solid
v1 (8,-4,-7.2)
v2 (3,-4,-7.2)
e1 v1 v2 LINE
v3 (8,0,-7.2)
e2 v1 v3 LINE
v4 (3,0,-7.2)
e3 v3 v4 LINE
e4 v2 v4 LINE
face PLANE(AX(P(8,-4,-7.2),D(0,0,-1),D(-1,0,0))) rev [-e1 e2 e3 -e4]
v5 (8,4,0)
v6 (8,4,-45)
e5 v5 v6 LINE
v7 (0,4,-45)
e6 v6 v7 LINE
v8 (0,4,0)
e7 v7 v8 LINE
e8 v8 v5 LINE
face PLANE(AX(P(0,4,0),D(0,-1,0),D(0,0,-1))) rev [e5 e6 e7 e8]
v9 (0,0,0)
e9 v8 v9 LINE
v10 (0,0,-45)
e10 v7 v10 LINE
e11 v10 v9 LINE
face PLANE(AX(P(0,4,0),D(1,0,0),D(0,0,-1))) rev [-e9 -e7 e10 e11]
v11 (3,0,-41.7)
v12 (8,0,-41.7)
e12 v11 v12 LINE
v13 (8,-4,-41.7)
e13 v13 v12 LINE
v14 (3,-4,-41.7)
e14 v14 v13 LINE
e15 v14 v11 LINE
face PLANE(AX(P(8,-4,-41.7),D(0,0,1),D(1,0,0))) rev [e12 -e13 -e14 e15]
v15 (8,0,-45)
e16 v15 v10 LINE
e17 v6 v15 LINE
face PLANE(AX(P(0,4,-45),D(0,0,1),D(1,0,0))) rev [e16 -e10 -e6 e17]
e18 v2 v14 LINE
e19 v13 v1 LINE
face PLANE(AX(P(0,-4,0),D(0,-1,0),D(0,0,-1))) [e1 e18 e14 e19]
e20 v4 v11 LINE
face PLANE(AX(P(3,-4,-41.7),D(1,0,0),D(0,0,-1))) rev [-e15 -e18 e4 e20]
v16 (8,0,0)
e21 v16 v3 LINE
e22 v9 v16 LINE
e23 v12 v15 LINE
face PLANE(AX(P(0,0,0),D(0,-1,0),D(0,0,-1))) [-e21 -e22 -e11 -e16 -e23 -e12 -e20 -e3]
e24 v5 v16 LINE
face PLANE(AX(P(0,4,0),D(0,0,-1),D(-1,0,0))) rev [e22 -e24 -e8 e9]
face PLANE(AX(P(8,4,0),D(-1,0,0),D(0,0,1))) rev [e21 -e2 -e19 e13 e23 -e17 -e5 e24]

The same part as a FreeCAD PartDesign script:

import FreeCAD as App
import Part
import Sketcher
Q = App.Units.Quantity


def add_polygon(sketch, points):
    """Adds a closed chain of lines whose ends are joined by coincident constraints."""
    first, n = sketch.GeometryCount, len(points)
    for a, b in zip(points, points[1:] + points[:1]):
        sketch.addGeometry(Part.LineSegment(App.Vector(*a, 0), App.Vector(*b, 0)), False)
    for i in range(n):
        sketch.addConstraint(Sketcher.Constraint("Coincident", first + i, 2, first + (i + 1) % n, 1))

doc = App.newDocument("Part")
body = doc.addObject("PartDesign::Body", "Body")

# Sketch on XZ plane
sketch1 = doc.addObject("Sketcher::SketchObject", "Sketch")
body.addObject(sketch1)
sketch1.AttachmentSupport = (doc.XZ_Plane, [""])
sketch1.MapMode = "FlatFace"
add_polygon(sketch1, [(0, -45), (0, 0), (8, 0), (8, -45)])  # lines 0-3
sketch1.addConstraint([
    Sketcher.Constraint("Vertical", 0),
    Sketcher.Constraint("Horizontal", 1),
    Sketcher.Constraint("Vertical", 2),
    Sketcher.Constraint("Horizontal", 3),
    Sketcher.Constraint("Coincident", 0, 2, -1, 1),
    Sketcher.Constraint("DistanceX", 1, 1, 1, 2, Q("8 mm")),
    Sketcher.Constraint("DistanceY", 0, 1, 0, 2, Q("45 mm")),
])
pad1 = doc.addObject("PartDesign::Pad", "Pad")
body.addObject(pad1)
pad1.Profile = sketch1
pad1.Length = 4
pad1.Reversed = True

# Sketch on XZ plane
sketch2 = doc.addObject("Sketcher::SketchObject", "Sketch001")
body.addObject(sketch2)
sketch2.AttachmentSupport = (doc.XZ_Plane, [""])
sketch2.MapMode = "FlatFace"
add_polygon(sketch2, [(3, -7.2), (3, -41.7), (8, -41.7), (8, -7.2)])  # lines 0-3
sketch2.addConstraint([
    Sketcher.Constraint("Vertical", 0),
    Sketcher.Constraint("Horizontal", 1),
    Sketcher.Constraint("Vertical", 2),
    Sketcher.Constraint("Horizontal", 3),
    Sketcher.Constraint("DistanceX", 1, 1, 1, 2, Q("5 mm")),
    Sketcher.Constraint("DistanceY", 0, 2, 0, 1, Q("34.5 mm")),
    Sketcher.Constraint("DistanceX", -1, 1, 0, 2, Q("3 mm")),
    Sketcher.Constraint("DistanceY", 0, 2, -1, 1, Q("41.7 mm")),
])
pad2 = doc.addObject("PartDesign::Pad", "Pad001")
body.addObject(pad2)
pad2.Profile = sketch2
pad2.Length = 4

doc.recompute()
